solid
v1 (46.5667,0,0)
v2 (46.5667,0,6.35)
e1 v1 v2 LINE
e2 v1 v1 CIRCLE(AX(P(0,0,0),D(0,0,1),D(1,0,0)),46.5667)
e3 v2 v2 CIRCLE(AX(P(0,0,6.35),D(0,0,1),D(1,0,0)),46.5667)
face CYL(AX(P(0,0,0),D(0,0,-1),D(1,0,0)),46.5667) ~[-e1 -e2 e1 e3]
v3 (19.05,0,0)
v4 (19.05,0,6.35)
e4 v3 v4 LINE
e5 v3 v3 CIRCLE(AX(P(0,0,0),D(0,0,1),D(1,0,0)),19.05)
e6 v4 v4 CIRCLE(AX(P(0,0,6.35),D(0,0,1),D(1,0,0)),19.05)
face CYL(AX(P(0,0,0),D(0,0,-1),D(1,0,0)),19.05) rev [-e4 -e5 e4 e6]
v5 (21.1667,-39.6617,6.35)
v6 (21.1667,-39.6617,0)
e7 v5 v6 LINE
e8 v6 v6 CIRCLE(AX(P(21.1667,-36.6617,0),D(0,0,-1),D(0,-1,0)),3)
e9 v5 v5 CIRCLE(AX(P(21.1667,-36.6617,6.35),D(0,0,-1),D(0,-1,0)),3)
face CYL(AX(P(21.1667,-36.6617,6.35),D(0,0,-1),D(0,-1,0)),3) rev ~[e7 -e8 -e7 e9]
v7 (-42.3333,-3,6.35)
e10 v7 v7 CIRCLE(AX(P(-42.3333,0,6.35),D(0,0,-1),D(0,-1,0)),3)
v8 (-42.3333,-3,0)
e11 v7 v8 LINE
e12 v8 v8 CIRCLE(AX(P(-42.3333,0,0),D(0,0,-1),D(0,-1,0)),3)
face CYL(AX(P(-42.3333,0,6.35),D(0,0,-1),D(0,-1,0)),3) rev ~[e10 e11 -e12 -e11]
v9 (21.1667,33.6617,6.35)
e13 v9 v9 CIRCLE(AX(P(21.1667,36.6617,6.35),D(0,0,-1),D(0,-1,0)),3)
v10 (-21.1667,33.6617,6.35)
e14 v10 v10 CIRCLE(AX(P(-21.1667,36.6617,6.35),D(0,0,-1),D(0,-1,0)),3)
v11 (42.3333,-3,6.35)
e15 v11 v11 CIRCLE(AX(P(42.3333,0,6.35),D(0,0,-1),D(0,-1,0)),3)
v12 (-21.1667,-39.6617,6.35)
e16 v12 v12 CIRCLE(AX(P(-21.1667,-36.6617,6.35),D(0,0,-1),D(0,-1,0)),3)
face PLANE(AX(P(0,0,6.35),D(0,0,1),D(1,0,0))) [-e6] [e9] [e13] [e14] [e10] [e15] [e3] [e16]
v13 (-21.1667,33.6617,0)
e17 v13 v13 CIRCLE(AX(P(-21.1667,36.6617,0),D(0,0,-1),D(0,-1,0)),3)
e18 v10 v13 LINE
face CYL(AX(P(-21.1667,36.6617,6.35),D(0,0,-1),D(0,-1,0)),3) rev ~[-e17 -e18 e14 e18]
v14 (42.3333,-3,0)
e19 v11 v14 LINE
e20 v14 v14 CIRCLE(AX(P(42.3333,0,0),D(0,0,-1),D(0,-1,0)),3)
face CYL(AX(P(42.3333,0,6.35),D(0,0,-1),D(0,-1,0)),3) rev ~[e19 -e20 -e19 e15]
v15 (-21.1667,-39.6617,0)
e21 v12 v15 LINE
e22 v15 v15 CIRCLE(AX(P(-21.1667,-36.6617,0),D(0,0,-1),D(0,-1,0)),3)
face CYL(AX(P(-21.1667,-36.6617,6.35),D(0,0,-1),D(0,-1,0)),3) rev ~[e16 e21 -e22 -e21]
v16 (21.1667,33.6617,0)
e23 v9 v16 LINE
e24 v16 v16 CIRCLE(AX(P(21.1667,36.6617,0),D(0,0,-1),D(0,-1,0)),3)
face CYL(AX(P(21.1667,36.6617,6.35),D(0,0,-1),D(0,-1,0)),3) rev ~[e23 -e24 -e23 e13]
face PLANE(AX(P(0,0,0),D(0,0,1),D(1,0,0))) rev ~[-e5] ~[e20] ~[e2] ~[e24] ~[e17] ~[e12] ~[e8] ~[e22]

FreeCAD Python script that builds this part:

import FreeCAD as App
import Part
import Sketcher
from FreeCAD import Vector
Q = App.Units.Quantity

doc = App.newDocument("Part")
body = doc.addObject("PartDesign::Body", "Body")

# Sketch on XY plane
sketch1 = body.newObject("Sketcher::SketchObject", "Sketch")
sketch1.AttachmentSupport = (doc.getObject("XY_Plane"), [""])
sketch1.MapMode = "FlatFace"
sketch1.addGeometry([
    Part.Circle(Vector(0, 0, 0), Vector(0, 0, 1), 46.5667),
    Part.Circle(Vector(0, 0, 0), Vector(0, 0, 1), 19.05),
], False)
sketch1.addConstraint([
    Sketcher.Constraint("Coincident", 0, 3, -1, 1),
    Sketcher.Constraint("Coincident", 1, 3, -1, 1),
    Sketcher.Constraint("Diameter", 1, Q("1.5 in")),
    Sketcher.Constraint("Diameter", 0, Q("93.1334 mm")),
])
pad1 = body.newObject("PartDesign::Pad", "Pad")
pad1.Profile = sketch1
pad1.Length = Q("0.25 in")

# Sketch on XY plane
sketch2 = body.newObject("Sketcher::SketchObject", "Sketch001")
sketch2.AttachmentSupport = (doc.getObject("XY_Plane"), [""])
sketch2.MapMode = "FlatFace"
sketch2.AttachmentOffset = App.Placement(Vector(0, 0, 0.25 * 25.4), App.Rotation())
sketch2.addGeometry([
    Part.Circle(Vector(-21.1667, 36.6617, 0), Vector(0, 0, 1), 3),  # 0
    Part.Circle(Vector(-42.3333, 0, 0), Vector(0, 0, 1), 3),  # 1
    Part.Circle(Vector(-21.1667, -36.6617, 0), Vector(0, 0, 1), 3),  # 2
    Part.Circle(Vector(42.3333, 0, 0), Vector(0, 0, 1), 3),  # 3
    Part.Circle(Vector(21.1667, -36.6617, 0), Vector(0, 0, 1), 3),  # 4
    Part.Circle(Vector(21.1667, 36.6617, 0), Vector(0, 0, 1), 3),  # 5
], False)
sketch2.addConstraint([
    Sketcher.Constraint("Equal", 0, 1),
    Sketcher.Constraint("Equal", 1, 2),
    Sketcher.Constraint("Equal", 2, 3),
    Sketcher.Constraint("Equal", 3, 4),
    Sketcher.Constraint("Equal", 4, 5),
    Sketcher.Constraint("Symmetric", 1, 3, 3, 3, -1, 1),
    Sketcher.Constraint("Symmetric", 0, 3, 4, 3, -1, 1),
    Sketcher.Constraint("Symmetric", 2, 3, 5, 3, -1, 1),
    Sketcher.Constraint("Symmetric", 2, 3, 4, 3, -2),
    Sketcher.Constraint("PointOnObject", 1, 3, -1),
    Sketcher.Constraint("DistanceX", 0, 3, 3, 3, Q("2.5 in")),
    Sketcher.Constraint("Diameter", 0, Q("6 mm")),
    Sketcher.Constraint("DistanceX", 0, 3, -1, 1, Q("21.1667 mm")),
    Sketcher.Constraint("DistanceY", -1, 1, 0, 3, Q("36.6617 mm")),
])
doc.recompute()
hole = body.newObject("PartDesign::Hole", "Hole")
hole.Profile = sketch2
hole.ThreadType = "None"
hole.Diameter = 6
hole.DepthType = "ThroughAll"

doc.recompute()
